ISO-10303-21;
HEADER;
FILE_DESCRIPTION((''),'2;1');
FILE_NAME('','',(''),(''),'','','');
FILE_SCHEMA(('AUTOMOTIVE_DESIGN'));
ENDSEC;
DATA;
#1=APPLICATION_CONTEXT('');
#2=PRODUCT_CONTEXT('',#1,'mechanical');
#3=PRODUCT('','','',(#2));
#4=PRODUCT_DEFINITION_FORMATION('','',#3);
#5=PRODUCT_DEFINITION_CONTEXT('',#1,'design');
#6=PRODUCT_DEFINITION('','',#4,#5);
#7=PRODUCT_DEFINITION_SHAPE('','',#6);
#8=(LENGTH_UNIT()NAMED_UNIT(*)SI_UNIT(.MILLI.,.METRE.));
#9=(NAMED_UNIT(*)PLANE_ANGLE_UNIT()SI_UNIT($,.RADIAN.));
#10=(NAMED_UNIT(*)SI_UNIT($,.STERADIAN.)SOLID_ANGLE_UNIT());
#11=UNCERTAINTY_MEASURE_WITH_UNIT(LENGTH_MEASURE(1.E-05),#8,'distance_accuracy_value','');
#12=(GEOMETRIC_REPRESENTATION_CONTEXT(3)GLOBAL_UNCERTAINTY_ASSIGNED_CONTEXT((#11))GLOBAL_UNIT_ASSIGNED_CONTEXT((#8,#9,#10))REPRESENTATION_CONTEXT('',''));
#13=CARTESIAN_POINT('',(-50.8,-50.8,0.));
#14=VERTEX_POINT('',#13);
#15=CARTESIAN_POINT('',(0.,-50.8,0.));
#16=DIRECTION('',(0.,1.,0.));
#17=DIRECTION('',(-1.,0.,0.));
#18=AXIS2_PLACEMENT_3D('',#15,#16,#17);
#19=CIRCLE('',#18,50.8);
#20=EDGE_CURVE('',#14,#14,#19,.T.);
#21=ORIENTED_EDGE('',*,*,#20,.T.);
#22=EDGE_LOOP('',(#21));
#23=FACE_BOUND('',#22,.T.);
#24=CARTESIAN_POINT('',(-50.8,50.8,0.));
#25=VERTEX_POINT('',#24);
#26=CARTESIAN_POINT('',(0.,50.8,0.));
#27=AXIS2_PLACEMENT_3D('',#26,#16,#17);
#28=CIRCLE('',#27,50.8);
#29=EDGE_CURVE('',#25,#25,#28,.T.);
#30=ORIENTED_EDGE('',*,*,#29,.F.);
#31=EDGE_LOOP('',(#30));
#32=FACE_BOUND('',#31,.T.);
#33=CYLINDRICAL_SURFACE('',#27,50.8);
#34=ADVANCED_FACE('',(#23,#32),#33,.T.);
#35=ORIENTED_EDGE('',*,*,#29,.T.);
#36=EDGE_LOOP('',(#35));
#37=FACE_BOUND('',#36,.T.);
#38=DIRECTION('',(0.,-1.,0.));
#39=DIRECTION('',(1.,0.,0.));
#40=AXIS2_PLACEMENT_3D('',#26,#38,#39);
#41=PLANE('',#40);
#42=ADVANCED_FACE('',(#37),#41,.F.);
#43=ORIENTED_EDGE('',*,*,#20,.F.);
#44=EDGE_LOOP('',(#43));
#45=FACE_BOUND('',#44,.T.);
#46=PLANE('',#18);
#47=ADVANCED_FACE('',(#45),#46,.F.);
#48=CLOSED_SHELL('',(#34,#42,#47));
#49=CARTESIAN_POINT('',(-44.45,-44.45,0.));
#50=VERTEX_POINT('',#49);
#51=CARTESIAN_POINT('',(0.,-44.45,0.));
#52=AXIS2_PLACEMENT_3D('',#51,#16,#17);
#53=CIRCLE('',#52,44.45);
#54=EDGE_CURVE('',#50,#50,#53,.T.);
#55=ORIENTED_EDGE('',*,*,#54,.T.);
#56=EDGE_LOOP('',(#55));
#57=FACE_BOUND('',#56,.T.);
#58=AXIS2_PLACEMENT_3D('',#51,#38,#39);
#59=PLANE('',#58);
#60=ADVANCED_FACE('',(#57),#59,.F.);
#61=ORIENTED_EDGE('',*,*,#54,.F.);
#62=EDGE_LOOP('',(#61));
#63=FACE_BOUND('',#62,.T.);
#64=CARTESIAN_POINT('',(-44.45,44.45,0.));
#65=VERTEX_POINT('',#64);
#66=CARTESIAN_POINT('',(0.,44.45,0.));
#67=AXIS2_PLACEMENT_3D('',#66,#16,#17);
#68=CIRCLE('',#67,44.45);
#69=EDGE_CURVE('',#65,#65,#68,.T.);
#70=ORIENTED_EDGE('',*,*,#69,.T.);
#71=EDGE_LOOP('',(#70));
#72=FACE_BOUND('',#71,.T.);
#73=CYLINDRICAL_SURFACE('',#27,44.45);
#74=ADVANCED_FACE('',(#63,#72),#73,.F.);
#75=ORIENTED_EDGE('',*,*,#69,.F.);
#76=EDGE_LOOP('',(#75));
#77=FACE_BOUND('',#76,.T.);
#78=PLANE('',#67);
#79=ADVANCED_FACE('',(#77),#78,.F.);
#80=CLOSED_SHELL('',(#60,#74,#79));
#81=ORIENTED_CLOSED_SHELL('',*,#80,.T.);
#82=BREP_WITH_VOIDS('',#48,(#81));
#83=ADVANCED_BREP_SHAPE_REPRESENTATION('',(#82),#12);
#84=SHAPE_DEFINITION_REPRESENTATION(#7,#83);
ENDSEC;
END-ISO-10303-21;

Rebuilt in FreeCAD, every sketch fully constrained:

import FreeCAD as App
import Part
import Sketcher
from FreeCAD import Vector
Q = App.Units.Quantity


def add_polygon(sketch, points):
    """Adds a closed chain of lines whose ends are joined by coincident constraints."""
    first, n = sketch.GeometryCount, len(points)
    for a, b in zip(points, points[1:] + points[:1]):
        sketch.addGeometry(Part.LineSegment(App.Vector(*a, 0), App.Vector(*b, 0)), False)
    for i in range(n):
        sketch.addConstraint(Sketcher.Constraint("Coincident", first + i, 2, first + (i + 1) % n, 1))

doc = App.newDocument("Part")
body = doc.addObject("PartDesign::Body", "Body")

sketch1 = body.newObject("Sketcher::SketchObject", "Sketch")
sketch1.AttachmentSupport = (doc.getObject("XY_Plane"), [""])
sketch1.MapMode = "FlatFace"
add_polygon(sketch1, [(51, 51), (0, 51), (0, 44), (44, 44), (44, -44), (0, -44), (0, -51), (51, -51)])
sketch1.addConstraint(Sketcher.Constraint("Horizontal", 0))
sketch1.addConstraint(Sketcher.Constraint("Vertical", 1))
sketch1.addConstraint(Sketcher.Constraint("Horizontal", 2))
sketch1.addConstraint(Sketcher.Constraint("Vertical", 3))
sketch1.addConstraint(Sketcher.Constraint("Horizontal", 4))
sketch1.addConstraint(Sketcher.Constraint("Vertical", 5))
sketch1.addConstraint(Sketcher.Constraint("Horizontal", 6))
sketch1.addConstraint(Sketcher.Constraint("Vertical", 7))
sketch1.addConstraint(Sketcher.Constraint("Symmetric", 1, 2, 4, 2, -1, 1))
sketch1.addConstraint(Sketcher.Constraint("Symmetric", 0, 2, 5, 2, -1))
sketch1.addConstraint(Sketcher.Constraint("DistanceX", 0, 2, 0, 1, Q("2 in")))
sketch1.addConstraint(Sketcher.Constraint("DistanceY", 7, 1, 7, 2, Q("4 in")))
sketch1.addConstraint(Sketcher.Constraint("DistanceY", 3, 2, 3, 1, Q("3.5 in")))
sketch1.addConstraint(Sketcher.Constraint("DistanceX", 2, 1, 2, 2, Q("1.75 in")))
revolution = body.newObject("PartDesign::Revolution", "Revolution")
revolution.Profile = sketch1
revolution.ReferenceAxis = (sketch1, ["V_Axis"])
revolution.Angle = 360

doc.recompute()
